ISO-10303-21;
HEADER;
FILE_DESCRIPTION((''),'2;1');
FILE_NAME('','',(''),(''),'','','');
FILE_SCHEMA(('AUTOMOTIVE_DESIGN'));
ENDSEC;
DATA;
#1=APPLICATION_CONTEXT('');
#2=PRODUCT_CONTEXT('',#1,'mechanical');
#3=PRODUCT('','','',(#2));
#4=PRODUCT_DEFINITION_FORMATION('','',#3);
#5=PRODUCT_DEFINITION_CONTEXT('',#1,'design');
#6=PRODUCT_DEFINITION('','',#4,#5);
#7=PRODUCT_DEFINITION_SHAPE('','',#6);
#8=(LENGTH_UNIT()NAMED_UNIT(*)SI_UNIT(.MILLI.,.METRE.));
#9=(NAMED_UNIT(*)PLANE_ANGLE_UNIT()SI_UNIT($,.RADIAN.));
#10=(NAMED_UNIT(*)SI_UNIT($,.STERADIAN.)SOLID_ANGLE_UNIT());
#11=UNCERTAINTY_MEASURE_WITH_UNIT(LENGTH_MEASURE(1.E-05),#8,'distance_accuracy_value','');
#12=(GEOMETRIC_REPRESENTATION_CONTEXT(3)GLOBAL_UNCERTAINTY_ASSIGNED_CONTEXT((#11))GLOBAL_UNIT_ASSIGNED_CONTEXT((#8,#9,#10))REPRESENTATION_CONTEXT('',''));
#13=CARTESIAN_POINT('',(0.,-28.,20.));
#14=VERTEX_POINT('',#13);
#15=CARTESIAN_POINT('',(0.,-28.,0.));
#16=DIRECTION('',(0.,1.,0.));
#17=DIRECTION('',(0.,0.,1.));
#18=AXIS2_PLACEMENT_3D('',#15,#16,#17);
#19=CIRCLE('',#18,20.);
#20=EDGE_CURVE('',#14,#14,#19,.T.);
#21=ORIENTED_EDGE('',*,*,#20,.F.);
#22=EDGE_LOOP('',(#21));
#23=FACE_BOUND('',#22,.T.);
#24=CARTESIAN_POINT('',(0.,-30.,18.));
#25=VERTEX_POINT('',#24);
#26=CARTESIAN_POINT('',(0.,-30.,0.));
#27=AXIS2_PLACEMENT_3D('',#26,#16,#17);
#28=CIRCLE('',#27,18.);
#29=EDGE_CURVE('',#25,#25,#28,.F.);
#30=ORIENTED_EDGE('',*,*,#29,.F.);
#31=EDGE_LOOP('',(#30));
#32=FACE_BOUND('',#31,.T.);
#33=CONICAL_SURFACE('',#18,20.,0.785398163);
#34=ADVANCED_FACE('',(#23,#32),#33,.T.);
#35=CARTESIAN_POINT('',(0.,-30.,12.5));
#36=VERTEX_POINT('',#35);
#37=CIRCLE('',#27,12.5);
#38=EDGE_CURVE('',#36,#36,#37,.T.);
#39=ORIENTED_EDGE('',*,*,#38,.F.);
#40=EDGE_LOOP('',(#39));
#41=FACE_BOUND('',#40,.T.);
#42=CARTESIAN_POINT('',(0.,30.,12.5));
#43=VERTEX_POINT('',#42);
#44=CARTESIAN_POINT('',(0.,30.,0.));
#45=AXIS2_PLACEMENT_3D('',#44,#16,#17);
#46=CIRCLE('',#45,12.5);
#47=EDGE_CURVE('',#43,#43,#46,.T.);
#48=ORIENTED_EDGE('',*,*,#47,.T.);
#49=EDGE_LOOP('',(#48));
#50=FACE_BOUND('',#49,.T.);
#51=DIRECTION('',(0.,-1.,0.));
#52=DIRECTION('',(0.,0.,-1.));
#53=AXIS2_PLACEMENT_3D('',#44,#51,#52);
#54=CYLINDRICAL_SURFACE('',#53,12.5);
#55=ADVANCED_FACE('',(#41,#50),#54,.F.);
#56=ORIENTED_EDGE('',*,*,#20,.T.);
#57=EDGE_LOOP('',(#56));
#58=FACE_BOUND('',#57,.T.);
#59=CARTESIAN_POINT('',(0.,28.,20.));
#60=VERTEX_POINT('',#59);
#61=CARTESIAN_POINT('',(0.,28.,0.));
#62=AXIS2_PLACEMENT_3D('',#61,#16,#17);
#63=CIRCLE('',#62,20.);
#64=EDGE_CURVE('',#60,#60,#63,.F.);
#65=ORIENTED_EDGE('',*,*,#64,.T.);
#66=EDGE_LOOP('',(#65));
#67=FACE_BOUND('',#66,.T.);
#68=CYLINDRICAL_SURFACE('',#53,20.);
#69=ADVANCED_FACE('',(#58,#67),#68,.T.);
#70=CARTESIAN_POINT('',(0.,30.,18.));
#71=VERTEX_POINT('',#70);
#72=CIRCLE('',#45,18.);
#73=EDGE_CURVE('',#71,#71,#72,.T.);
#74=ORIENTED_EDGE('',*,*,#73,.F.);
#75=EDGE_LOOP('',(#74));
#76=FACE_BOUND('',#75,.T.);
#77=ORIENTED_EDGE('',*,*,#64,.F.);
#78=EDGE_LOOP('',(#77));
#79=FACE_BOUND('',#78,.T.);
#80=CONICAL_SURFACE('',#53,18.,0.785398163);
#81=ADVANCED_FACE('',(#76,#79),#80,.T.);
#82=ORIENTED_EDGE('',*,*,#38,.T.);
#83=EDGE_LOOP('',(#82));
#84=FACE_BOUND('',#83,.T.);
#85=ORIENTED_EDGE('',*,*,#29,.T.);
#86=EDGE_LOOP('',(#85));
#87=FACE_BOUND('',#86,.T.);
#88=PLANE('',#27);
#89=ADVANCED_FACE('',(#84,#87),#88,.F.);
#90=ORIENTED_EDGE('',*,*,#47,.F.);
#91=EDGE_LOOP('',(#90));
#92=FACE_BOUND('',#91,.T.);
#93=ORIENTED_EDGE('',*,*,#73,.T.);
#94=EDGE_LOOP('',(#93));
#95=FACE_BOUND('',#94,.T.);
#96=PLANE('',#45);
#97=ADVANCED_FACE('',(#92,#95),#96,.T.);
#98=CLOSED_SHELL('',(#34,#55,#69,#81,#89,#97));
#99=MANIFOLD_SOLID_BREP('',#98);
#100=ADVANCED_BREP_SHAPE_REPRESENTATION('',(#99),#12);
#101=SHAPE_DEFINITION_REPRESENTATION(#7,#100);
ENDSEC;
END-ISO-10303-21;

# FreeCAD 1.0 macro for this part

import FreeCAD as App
import Part
import Sketcher
from FreeCAD import Vector


def edges_at(feature, points):
    """Names of the edges that pass closest to the given points."""
    edges = feature.Shape.Edges
    near = lambda p: min(range(len(edges)), key=lambda i: edges[i].distToShape(Part.Vertex(*p))[0])
    return sorted({f"Edge{near(p) + 1}" for p in points})

doc = App.newDocument("Part")
params = doc.addObject("Spreadsheet::Sheet", "Params")
for row, (alias, value) in enumerate([
    ("sketch1_diameter", "40 mm"),
    ("sketch1_diameter2", "25 mm"),
    ("pad1_length", "60 mm"),
    ("chamfer_size", "2 mm"),
], start=1):
    params.set(f"A{row}", alias)
    params.set(f"B{row}", "=" + value)
    params.setAlias(f"B{row}", alias)

body = doc.addObject("PartDesign::Body", "Body")

# Sketch on XZ plane
sketch1 = body.newObject("Sketcher::SketchObject", "Sketch")
sketch1.AttachmentSupport = (doc.getObject("XZ_Plane"), [""])
sketch1.MapMode = "FlatFace"
sketch1.addGeometry([
    Part.Circle(Vector(0, 0, 0), Vector(0, 0, 1), 20),
    Part.Circle(Vector(0, 0, 0), Vector(0, 0, 1), 12.5),
], False)
sketch1.addConstraint([
    Sketcher.Constraint("Coincident", 0, 3, -1, 1),
    Sketcher.Constraint("Coincident", 1, 3, -1, 1),
    Sketcher.Constraint("Diameter", 0, 40.0),
    Sketcher.Constraint("Diameter", 1, 25.0),
])
sketch1.setExpression("Constraints[2]", "Params.sketch1_diameter")
sketch1.setExpression("Constraints[3]", "Params.sketch1_diameter2")
pad1 = body.newObject("PartDesign::Pad", "Pad")
pad1.Profile = sketch1
pad1.setExpression("Length", "Params.pad1_length")
pad1.Midplane = True
doc.recompute()

chamfer = body.newObject("PartDesign::Chamfer", "Chamfer")
chamfer.Base = (pad1, edges_at(pad1, [(-20, -30, 0), (-20, 30, 0)]))
chamfer.setExpression("Size", "Params.chamfer_size")

doc.recompute()
